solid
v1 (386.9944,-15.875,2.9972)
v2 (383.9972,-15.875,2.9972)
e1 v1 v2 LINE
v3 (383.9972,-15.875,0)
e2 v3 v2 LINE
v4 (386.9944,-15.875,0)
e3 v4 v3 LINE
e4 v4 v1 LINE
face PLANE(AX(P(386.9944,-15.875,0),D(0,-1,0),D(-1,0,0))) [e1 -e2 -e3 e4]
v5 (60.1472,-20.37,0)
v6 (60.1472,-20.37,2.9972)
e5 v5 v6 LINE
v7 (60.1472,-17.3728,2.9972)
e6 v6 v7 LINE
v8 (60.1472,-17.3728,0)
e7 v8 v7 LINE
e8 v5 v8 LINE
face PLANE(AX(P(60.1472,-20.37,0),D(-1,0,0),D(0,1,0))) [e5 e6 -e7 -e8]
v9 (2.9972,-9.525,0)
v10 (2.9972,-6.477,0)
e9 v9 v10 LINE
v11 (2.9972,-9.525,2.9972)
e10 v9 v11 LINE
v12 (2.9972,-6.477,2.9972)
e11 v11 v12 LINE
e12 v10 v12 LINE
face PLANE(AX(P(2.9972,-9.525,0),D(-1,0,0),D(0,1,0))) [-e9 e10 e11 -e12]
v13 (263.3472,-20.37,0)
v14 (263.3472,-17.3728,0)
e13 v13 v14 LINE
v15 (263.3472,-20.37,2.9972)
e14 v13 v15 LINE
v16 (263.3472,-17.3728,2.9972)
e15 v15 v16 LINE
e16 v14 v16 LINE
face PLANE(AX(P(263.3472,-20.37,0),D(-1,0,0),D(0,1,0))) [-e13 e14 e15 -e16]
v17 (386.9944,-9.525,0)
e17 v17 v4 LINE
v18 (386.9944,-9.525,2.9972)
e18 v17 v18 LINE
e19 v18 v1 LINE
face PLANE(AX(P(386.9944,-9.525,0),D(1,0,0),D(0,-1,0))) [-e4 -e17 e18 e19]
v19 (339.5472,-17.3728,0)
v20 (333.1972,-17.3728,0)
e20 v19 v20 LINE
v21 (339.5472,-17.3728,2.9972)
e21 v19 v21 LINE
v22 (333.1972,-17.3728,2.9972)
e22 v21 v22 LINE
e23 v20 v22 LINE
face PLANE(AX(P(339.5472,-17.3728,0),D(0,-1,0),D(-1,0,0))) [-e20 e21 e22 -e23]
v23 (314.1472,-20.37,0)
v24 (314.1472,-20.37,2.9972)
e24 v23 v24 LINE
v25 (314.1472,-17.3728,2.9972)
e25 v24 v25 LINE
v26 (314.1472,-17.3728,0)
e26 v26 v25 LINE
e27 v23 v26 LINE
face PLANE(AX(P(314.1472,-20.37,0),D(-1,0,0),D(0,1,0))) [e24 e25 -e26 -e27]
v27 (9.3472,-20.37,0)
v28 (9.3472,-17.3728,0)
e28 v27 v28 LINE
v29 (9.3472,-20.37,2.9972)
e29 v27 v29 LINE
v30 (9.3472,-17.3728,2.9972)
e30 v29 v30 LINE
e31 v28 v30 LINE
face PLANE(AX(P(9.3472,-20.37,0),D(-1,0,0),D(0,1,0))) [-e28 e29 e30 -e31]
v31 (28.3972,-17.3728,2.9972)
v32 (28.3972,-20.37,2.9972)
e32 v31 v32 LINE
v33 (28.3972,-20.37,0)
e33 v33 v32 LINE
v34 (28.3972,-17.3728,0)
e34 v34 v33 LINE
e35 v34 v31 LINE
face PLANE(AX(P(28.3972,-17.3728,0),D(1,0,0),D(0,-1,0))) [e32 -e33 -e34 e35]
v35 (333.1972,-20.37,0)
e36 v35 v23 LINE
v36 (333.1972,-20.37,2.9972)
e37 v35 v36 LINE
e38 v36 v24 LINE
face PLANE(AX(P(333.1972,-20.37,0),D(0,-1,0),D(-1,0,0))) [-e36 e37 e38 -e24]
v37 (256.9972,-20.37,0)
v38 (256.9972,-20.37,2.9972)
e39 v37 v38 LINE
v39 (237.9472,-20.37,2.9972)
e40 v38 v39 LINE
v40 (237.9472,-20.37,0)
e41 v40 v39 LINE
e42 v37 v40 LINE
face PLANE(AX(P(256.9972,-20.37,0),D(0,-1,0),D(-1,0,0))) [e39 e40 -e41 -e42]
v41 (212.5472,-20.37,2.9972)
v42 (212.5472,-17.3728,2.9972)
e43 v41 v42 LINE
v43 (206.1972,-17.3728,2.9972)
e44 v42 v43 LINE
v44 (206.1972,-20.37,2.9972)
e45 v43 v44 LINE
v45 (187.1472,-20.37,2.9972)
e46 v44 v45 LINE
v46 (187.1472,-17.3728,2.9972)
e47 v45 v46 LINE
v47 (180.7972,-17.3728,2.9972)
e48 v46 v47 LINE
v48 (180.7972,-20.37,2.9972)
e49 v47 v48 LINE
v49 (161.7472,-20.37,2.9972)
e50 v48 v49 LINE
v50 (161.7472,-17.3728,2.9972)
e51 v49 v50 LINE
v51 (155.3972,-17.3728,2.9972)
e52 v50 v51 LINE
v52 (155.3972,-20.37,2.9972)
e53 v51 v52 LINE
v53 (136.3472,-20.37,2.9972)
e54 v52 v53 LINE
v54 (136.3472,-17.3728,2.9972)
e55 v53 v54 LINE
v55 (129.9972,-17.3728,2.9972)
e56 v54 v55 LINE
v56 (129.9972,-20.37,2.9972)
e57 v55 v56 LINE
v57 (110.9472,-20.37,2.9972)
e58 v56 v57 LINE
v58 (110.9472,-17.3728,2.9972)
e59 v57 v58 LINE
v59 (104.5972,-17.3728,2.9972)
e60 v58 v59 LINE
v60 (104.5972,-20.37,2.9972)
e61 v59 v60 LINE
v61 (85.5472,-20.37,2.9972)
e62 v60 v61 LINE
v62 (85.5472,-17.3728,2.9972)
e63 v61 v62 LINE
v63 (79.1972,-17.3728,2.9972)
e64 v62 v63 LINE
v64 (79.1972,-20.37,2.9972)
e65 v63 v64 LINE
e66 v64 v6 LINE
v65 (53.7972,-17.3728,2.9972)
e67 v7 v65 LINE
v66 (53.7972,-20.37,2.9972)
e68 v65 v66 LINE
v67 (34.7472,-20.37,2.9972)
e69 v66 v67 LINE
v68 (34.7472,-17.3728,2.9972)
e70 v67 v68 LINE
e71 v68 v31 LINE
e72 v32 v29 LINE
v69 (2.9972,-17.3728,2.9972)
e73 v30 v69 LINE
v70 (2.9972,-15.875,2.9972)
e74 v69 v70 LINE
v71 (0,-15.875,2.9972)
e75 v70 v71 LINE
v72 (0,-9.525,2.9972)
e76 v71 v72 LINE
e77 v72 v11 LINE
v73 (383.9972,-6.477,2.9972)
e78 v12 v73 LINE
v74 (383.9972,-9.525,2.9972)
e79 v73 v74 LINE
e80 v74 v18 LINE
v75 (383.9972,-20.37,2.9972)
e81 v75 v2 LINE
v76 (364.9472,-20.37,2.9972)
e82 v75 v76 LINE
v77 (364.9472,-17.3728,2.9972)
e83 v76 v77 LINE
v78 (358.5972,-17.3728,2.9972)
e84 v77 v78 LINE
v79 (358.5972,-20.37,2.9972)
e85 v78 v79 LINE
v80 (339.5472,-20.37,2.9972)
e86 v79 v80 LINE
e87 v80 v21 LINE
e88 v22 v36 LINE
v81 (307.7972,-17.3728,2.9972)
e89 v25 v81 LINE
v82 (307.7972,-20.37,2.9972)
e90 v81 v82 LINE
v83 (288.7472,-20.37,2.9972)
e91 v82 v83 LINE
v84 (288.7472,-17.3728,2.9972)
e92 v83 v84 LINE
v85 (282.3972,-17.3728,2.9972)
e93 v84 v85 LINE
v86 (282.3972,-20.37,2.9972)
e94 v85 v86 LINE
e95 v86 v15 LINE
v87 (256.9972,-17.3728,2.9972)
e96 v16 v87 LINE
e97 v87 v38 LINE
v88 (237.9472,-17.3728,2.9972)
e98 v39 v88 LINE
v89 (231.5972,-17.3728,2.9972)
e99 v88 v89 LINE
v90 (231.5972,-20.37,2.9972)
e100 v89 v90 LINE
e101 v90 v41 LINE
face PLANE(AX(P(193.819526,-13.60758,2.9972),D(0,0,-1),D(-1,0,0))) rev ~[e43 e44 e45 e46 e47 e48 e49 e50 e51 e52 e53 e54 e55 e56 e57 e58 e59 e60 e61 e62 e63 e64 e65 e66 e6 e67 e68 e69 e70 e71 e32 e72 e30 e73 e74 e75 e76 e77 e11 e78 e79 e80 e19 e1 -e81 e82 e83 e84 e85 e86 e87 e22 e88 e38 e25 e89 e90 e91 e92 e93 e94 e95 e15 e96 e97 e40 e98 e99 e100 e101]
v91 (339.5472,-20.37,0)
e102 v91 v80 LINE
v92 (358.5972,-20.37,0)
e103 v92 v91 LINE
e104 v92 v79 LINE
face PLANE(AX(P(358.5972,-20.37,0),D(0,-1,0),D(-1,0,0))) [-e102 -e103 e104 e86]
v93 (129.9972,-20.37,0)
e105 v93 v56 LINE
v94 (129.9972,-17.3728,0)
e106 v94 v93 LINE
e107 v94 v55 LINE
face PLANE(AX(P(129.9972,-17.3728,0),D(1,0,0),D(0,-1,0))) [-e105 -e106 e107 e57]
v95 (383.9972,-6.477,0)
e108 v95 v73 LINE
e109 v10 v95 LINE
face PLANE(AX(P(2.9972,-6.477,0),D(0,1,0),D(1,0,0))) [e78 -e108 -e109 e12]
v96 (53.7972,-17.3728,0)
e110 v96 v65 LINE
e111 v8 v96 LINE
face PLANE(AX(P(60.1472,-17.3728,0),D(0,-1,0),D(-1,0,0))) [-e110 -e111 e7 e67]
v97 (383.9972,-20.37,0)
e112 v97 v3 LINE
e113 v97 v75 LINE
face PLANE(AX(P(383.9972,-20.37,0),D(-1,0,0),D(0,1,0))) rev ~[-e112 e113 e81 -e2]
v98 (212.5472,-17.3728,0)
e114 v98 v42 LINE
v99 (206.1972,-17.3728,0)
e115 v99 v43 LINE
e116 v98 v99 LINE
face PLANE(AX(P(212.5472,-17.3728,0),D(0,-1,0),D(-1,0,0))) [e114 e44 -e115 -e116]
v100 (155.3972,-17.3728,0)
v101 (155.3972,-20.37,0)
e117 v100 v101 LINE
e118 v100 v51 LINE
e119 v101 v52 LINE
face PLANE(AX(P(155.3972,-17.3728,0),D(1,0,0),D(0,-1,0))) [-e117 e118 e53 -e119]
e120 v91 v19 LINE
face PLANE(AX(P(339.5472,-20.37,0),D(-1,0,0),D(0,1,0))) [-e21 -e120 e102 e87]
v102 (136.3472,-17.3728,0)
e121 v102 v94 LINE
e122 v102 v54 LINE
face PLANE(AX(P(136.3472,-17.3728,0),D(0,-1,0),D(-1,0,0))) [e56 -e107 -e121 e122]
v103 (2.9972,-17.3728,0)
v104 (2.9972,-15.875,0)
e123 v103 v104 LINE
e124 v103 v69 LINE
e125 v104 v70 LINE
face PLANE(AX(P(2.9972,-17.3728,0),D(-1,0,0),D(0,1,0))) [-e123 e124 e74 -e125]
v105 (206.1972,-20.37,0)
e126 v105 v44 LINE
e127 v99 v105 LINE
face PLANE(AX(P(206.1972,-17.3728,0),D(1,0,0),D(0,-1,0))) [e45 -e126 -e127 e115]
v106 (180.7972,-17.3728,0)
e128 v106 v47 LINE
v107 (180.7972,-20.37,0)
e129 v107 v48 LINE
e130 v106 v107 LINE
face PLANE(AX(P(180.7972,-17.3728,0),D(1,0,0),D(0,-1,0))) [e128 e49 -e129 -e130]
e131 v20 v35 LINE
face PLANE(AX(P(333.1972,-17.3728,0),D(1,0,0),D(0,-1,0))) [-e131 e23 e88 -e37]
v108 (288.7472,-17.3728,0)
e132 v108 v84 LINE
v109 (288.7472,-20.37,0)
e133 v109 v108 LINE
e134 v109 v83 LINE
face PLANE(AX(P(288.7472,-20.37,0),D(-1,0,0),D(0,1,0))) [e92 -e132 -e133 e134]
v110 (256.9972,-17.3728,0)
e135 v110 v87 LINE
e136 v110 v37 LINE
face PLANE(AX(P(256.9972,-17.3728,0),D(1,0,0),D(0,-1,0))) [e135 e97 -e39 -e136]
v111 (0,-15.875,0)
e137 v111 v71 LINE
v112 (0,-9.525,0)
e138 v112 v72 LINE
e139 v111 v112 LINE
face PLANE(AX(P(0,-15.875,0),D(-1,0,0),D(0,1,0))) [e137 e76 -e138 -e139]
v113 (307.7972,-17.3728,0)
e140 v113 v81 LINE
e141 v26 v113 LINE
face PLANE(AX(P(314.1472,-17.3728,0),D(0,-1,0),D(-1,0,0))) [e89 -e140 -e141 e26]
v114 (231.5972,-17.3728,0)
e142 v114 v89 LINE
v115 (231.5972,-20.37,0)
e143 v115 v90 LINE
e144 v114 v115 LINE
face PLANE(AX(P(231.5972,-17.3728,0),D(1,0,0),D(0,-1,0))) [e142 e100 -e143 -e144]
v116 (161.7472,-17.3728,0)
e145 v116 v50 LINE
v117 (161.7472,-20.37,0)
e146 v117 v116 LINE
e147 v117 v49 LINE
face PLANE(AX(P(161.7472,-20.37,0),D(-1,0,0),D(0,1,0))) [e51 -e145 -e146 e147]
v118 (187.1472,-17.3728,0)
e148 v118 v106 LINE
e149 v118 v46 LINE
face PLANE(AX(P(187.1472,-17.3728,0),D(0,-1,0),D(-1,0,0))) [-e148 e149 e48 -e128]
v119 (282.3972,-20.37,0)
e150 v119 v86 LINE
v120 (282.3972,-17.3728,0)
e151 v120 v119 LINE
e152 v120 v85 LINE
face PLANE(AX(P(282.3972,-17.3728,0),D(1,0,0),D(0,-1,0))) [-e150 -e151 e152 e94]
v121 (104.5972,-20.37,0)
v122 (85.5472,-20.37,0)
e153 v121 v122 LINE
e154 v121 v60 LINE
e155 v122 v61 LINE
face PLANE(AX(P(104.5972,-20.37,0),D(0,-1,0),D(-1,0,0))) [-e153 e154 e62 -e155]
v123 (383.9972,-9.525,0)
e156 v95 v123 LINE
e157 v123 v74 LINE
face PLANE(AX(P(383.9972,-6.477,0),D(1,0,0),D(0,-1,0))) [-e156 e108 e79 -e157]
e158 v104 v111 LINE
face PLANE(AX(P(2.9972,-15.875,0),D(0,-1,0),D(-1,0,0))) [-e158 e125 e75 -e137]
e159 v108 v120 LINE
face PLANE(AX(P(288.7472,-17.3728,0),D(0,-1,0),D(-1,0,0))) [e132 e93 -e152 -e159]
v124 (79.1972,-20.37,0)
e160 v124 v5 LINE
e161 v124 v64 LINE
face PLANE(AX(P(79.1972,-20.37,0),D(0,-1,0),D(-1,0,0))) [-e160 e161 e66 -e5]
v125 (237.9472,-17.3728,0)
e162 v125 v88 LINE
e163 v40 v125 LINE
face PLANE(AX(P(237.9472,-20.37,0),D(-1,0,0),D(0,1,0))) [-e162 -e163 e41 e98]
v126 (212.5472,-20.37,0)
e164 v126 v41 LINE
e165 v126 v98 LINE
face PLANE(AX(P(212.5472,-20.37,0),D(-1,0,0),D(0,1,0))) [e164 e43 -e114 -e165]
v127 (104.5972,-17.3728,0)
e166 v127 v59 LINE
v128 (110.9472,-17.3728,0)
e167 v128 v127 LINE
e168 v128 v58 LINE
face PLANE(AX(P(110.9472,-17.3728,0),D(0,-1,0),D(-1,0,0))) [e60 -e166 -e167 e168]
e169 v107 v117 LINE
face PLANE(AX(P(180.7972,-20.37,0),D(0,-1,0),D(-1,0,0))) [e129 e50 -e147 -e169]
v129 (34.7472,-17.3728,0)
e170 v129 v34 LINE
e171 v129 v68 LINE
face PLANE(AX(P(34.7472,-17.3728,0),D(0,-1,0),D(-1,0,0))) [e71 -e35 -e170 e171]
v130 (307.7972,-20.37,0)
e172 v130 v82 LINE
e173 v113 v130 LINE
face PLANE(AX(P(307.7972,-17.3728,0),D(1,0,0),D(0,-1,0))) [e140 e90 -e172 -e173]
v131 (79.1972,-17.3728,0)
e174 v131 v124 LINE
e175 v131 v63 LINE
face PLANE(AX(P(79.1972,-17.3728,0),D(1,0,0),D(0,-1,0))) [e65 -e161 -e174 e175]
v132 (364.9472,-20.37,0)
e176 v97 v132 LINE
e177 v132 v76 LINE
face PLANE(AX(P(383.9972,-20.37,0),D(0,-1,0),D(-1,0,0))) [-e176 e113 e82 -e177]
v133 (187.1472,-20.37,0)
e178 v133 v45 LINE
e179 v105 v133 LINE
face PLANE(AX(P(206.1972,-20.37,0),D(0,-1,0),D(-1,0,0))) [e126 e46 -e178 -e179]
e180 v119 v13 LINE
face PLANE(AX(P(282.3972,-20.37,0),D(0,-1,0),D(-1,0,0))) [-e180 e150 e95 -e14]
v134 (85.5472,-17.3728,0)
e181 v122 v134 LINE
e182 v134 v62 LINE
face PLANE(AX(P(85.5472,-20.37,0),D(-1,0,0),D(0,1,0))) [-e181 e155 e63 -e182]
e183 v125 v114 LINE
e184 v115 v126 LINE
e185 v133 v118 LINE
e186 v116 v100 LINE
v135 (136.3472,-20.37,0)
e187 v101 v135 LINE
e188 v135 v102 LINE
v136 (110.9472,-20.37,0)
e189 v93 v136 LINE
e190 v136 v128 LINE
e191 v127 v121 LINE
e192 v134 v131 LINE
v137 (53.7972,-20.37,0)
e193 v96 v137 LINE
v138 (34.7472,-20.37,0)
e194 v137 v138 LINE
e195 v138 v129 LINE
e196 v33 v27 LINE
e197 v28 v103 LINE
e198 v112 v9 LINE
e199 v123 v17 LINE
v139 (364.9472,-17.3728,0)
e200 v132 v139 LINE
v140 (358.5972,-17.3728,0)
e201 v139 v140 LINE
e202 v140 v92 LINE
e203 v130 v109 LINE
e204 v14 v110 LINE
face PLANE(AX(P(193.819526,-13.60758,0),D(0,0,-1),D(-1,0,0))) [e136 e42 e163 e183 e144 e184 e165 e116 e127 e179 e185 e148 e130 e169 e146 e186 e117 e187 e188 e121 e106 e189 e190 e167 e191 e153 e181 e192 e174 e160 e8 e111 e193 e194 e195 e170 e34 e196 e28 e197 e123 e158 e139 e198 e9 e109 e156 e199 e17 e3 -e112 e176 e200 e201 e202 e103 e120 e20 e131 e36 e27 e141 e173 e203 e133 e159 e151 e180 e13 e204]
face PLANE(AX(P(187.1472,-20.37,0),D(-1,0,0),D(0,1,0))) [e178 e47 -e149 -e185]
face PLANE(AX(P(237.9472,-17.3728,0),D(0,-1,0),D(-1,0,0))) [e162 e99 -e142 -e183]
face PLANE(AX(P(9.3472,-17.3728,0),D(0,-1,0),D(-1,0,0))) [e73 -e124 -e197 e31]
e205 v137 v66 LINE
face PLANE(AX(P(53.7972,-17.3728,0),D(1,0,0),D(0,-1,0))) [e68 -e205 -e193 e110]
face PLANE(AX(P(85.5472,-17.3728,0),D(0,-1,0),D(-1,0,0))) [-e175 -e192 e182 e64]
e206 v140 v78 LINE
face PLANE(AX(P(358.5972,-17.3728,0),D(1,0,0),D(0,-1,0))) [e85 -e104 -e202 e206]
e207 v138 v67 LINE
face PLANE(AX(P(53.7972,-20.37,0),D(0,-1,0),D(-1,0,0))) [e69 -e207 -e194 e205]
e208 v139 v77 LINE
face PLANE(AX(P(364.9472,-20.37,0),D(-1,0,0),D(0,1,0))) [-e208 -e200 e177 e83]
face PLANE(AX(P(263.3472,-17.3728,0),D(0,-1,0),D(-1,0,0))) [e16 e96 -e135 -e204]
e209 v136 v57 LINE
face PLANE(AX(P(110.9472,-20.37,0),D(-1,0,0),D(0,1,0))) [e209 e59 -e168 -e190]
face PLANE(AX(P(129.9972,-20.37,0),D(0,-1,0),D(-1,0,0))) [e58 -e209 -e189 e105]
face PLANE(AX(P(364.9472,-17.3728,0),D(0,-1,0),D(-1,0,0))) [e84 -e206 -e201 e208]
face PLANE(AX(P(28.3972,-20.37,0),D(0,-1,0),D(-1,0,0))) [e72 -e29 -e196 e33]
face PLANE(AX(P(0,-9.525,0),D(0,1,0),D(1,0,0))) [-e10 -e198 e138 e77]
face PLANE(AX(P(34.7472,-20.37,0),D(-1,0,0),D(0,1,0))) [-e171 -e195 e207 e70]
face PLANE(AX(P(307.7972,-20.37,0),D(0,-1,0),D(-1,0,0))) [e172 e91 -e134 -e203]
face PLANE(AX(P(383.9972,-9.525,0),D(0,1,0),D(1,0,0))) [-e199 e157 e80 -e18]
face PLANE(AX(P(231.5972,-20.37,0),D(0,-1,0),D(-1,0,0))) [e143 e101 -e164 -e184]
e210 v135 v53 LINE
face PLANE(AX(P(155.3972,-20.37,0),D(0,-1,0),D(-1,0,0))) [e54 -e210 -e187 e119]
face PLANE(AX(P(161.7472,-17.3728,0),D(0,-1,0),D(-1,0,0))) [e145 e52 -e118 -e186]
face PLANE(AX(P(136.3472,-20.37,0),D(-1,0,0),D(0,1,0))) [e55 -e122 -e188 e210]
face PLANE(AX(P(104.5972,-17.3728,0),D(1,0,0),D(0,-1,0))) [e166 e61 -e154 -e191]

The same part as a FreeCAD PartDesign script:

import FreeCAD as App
import Part
import Sketcher

V = App.Vector
Q = App.Units.Quantity


def add_polygon(sketch, points):
    """Adds a closed chain of lines whose ends are joined by coincident constraints."""
    first, n = sketch.GeometryCount, len(points)
    for a, b in zip(points, points[1:] + points[:1]):
        sketch.addGeometry(Part.LineSegment(App.Vector(*a, 0), App.Vector(*b, 0)), False)
    for i in range(n):
        sketch.addConstraint(Sketcher.Constraint("Coincident", first + i, 2, first + (i + 1) % n, 1))

doc = App.newDocument("Part")
body = doc.addObject("PartDesign::Body", "Body")

# Sketch on XY plane
sketch1 = body.newObject("Sketcher::SketchObject", "Sketch")
sketch1.AttachmentSupport = (doc.getObject("XY_Plane"), [""])
sketch1.MapMode = "FlatFace"
add_polygon(sketch1, [(0, -15.875), (2.9972, -15.875), (2.9972, -17.3728), (9.3472, -17.3728), (9.3472, -20.37), (28.3972, -20.37), (28.3972, -17.3728), (34.7472, -17.3728), (34.7472, -20.37), (53.7972, -20.37), (53.7972, -17.3728), (60.1472, -17.3728), (60.1472, -20.37), (79.1972, -20.37), (79.1972, -17.3728), (85.5472, -17.3728), (85.5472, -20.37), (104.5972, -20.37), (104.5972, -17.3728), (110.9472, -17.3728), (110.9472, -20.37), (129.9972, -20.37), (129.9972, -17.3728), (136.3472, -17.3728), (136.3472, -20.37), (155.3972, -20.37), (155.3972, -17.3728), (161.7472, -17.3728), (161.7472, -20.37), (180.7972, -20.37), (180.7972, -17.3728), (187.1472, -17.3728), (187.1472, -20.37), (206.1972, -20.37), (206.1972, -17.3728), (212.5472, -17.3728), (212.5472, -20.37), (231.5972, -20.37), (231.5972, -17.3728), (237.9472, -17.3728), (237.9472, -20.37), (256.9972, -20.37), (256.9972, -17.3728), (263.3472, -17.3728), (263.3472, -20.37), (282.3972, -20.37), (282.3972, -17.3728), (288.7472, -17.3728), (288.7472, -20.37), (307.7972, -20.37), (307.7972, -17.3728), (314.1472, -17.3728), (314.1472, -20.37), (333.1972, -20.37), (333.1972, -17.3728), (339.5472, -17.3728), (339.5472, -20.37), (358.5972, -20.37), (358.5972, -17.3728), (364.9472, -17.3728), (364.9472, -20.37), (383.9972, -20.37), (383.9972, -15.875), (386.9944, -15.875), (386.9944, -9.525), (383.9972, -9.525), (383.9972, -6.477), (2.9972, -6.477), (2.9972, -9.525), (0, -9.525)])  # lines 0-69
sketch1.addConstraint([
    Sketcher.Constraint("Horizontal", 0),
    Sketcher.Constraint("Vertical", 1),
    Sketcher.Constraint("Horizontal", 2),
    Sketcher.Constraint("Vertical", 3),
    Sketcher.Constraint("Horizontal", 4),
    Sketcher.Constraint("Vertical", 5),
    Sketcher.Constraint("Horizontal", 6),
    Sketcher.Constraint("Vertical", 7),
    Sketcher.Constraint("Horizontal", 8),
    Sketcher.Constraint("Vertical", 9),
    Sketcher.Constraint("Horizontal", 10),
    Sketcher.Constraint("Vertical", 11),
    Sketcher.Constraint("Horizontal", 12),
    Sketcher.Constraint("Vertical", 13),
    Sketcher.Constraint("Horizontal", 14),
    Sketcher.Constraint("Vertical", 15),
    Sketcher.Constraint("Horizontal", 16),
    Sketcher.Constraint("Vertical", 17),
    Sketcher.Constraint("Horizontal", 18),
    Sketcher.Constraint("Vertical", 19),
    Sketcher.Constraint("Horizontal", 20),
    Sketcher.Constraint("Vertical", 21),
    Sketcher.Constraint("Horizontal", 22),
    Sketcher.Constraint("Vertical", 23),
    Sketcher.Constraint("Horizontal", 24),
    Sketcher.Constraint("Vertical", 25),
    Sketcher.Constraint("Horizontal", 26),
    Sketcher.Constraint("Vertical", 27),
    Sketcher.Constraint("Horizontal", 28),
    Sketcher.Constraint("Vertical", 29),
    Sketcher.Constraint("Horizontal", 30),
    Sketcher.Constraint("Vertical", 31),
    Sketcher.Constraint("Horizontal", 32),
    Sketcher.Constraint("Vertical", 33),
    Sketcher.Constraint("Horizontal", 34),
    Sketcher.Constraint("Vertical", 35),
    Sketcher.Constraint("Horizontal", 36),
    Sketcher.Constraint("Vertical", 37),
    Sketcher.Constraint("Horizontal", 38),
    Sketcher.Constraint("Vertical", 39),
    Sketcher.Constraint("Horizontal", 40),
    Sketcher.Constraint("Vertical", 41),
    Sketcher.Constraint("Horizontal", 42),
    Sketcher.Constraint("Vertical", 43),
    Sketcher.Constraint("Horizontal", 44),
    Sketcher.Constraint("Vertical", 45),
    Sketcher.Constraint("Horizontal", 46),
    Sketcher.Constraint("Vertical", 47),
    Sketcher.Constraint("Horizontal", 48),
    Sketcher.Constraint("Vertical", 49),
    Sketcher.Constraint("Horizontal", 50),
    Sketcher.Constraint("Vertical", 51),
    Sketcher.Constraint("Horizontal", 52),
    Sketcher.Constraint("Vertical", 53),
    Sketcher.Constraint("Horizontal", 54),
    Sketcher.Constraint("Vertical", 55),
    Sketcher.Constraint("Horizontal", 56),
    Sketcher.Constraint("Vertical", 57),
    Sketcher.Constraint("Horizontal", 58),
    Sketcher.Constraint("Vertical", 59),
    Sketcher.Constraint("Horizontal", 60),
    Sketcher.Constraint("Vertical", 61),
    Sketcher.Constraint("Horizontal", 62),
    Sketcher.Constraint("Vertical", 63),
    Sketcher.Constraint("Horizontal", 64),
    Sketcher.Constraint("Vertical", 65),
    Sketcher.Constraint("Horizontal", 66),
    Sketcher.Constraint("Vertical", 67),
    Sketcher.Constraint("Horizontal", 68),
    Sketcher.Constraint("Vertical", 69),
    Sketcher.Constraint("PointOnObject", 68, 2, -2),
    Sketcher.Constraint("Horizontal", 2, 2, 5, 2),
    Sketcher.Constraint("Horizontal", 4, 2, 7, 2),
    Sketcher.Constraint("Horizontal", 6, 2, 9, 2),
    Sketcher.Constraint("Horizontal", 8, 2, 11, 2),
    Sketcher.Constraint("Horizontal", 10, 2, 13, 2),
    Sketcher.Constraint("Horizontal", 12, 2, 15, 2),
    Sketcher.Constraint("Horizontal", 14, 2, 17, 2),
    Sketcher.Constraint("Horizontal", 16, 2, 19, 2),
    Sketcher.Constraint("Horizontal", 18, 2, 21, 2),
    Sketcher.Constraint("Horizontal", 20, 2, 23, 2),
    Sketcher.Constraint("Horizontal", 22, 2, 25, 2),
    Sketcher.Constraint("Horizontal", 24, 2, 27, 2),
    Sketcher.Constraint("Horizontal", 26, 2, 29, 2),
    Sketcher.Constraint("Horizontal", 28, 2, 31, 2),
    Sketcher.Constraint("Horizontal", 30, 2, 33, 2),
    Sketcher.Constraint("Horizontal", 32, 2, 35, 2),
    Sketcher.Constraint("Horizontal", 34, 2, 37, 2),
    Sketcher.Constraint("Horizontal", 36, 2, 39, 2),
    Sketcher.Constraint("Horizontal", 38, 2, 41, 2),
    Sketcher.Constraint("Horizontal", 40, 2, 43, 2),
    Sketcher.Constraint("Horizontal", 42, 2, 45, 2),
    Sketcher.Constraint("Horizontal", 44, 2, 47, 2),
    Sketcher.Constraint("Horizontal", 46, 2, 49, 2),
    Sketcher.Constraint("Horizontal", 48, 2, 51, 2),
    Sketcher.Constraint("Horizontal", 50, 2, 53, 2),
    Sketcher.Constraint("Horizontal", 52, 2, 55, 2),
    Sketcher.Constraint("Horizontal", 54, 2, 57, 2),
    Sketcher.Constraint("Horizontal", 56, 2, 59, 2),
    Sketcher.Constraint("Horizontal", 0, 2, 61, 2),
    Sketcher.Constraint("Horizontal", 64, 2, 67, 2),
    Sketcher.Constraint("Vertical", 61, 2, 64, 2),
    Sketcher.Constraint("Vertical", 1, 2, 66, 2),
    Sketcher.Constraint("Equal", 2, 6),
    Sketcher.Constraint("Equal", 4, 8),
    Sketcher.Constraint("Equal", 6, 10),
    Sketcher.Constraint("Equal", 8, 12),
    Sketcher.Constraint("Equal", 10, 14),
    Sketcher.Constraint("Equal", 12, 16),
    Sketcher.Constraint("Equal", 14, 18),
    Sketcher.Constraint("Equal", 16, 20),
    Sketcher.Constraint("Equal", 18, 22),
    Sketcher.Constraint("Equal", 20, 24),
    Sketcher.Constraint("Equal", 22, 26),
    Sketcher.Constraint("Equal", 24, 28),
    Sketcher.Constraint("Equal", 26, 30),
    Sketcher.Constraint("Equal", 28, 32),
    Sketcher.Constraint("Equal", 30, 34),
    Sketcher.Constraint("Equal", 32, 36),
    Sketcher.Constraint("Equal", 34, 38),
    Sketcher.Constraint("Equal", 36, 40),
    Sketcher.Constraint("Equal", 38, 42),
    Sketcher.Constraint("Equal", 40, 44),
    Sketcher.Constraint("Equal", 42, 46),
    Sketcher.Constraint("Equal", 44, 48),
    Sketcher.Constraint("Equal", 46, 50),
    Sketcher.Constraint("Equal", 48, 52),
    Sketcher.Constraint("Equal", 50, 54),
    Sketcher.Constraint("Equal", 52, 56),
    Sketcher.Constraint("Equal", 54, 58),
    Sketcher.Constraint("Equal", 56, 60),
    Sketcher.Constraint("Equal", 0, 62),
    Sketcher.Constraint("Equal", 68, 3),
    Sketcher.Constraint("Equal", 58, 63),
    Sketcher.Constraint("DistanceX", 66, 2, 66, 1, Q("15 in")),
    Sketcher.Constraint("DistanceX", 2, 1, 2, 2, Q("0.25 in")),
    Sketcher.Constraint("DistanceY", 65, 1, 65, 2, Q("0.12 in")),
    Sketcher.Constraint("DistanceX", 0, 1, 0, 2, Q("0.118 in")),
    Sketcher.Constraint("DistanceY", 0, 2, -1, 1, Q("0.625 in")),
    Sketcher.Constraint("DistanceY", 1, 2, 1, 1, Q("1.4978 mm")),
])
pad1 = body.newObject("PartDesign::Pad", "Pad")
pad1.Profile = sketch1
pad1.Length = Q("0.118 in")

doc.recompute()
